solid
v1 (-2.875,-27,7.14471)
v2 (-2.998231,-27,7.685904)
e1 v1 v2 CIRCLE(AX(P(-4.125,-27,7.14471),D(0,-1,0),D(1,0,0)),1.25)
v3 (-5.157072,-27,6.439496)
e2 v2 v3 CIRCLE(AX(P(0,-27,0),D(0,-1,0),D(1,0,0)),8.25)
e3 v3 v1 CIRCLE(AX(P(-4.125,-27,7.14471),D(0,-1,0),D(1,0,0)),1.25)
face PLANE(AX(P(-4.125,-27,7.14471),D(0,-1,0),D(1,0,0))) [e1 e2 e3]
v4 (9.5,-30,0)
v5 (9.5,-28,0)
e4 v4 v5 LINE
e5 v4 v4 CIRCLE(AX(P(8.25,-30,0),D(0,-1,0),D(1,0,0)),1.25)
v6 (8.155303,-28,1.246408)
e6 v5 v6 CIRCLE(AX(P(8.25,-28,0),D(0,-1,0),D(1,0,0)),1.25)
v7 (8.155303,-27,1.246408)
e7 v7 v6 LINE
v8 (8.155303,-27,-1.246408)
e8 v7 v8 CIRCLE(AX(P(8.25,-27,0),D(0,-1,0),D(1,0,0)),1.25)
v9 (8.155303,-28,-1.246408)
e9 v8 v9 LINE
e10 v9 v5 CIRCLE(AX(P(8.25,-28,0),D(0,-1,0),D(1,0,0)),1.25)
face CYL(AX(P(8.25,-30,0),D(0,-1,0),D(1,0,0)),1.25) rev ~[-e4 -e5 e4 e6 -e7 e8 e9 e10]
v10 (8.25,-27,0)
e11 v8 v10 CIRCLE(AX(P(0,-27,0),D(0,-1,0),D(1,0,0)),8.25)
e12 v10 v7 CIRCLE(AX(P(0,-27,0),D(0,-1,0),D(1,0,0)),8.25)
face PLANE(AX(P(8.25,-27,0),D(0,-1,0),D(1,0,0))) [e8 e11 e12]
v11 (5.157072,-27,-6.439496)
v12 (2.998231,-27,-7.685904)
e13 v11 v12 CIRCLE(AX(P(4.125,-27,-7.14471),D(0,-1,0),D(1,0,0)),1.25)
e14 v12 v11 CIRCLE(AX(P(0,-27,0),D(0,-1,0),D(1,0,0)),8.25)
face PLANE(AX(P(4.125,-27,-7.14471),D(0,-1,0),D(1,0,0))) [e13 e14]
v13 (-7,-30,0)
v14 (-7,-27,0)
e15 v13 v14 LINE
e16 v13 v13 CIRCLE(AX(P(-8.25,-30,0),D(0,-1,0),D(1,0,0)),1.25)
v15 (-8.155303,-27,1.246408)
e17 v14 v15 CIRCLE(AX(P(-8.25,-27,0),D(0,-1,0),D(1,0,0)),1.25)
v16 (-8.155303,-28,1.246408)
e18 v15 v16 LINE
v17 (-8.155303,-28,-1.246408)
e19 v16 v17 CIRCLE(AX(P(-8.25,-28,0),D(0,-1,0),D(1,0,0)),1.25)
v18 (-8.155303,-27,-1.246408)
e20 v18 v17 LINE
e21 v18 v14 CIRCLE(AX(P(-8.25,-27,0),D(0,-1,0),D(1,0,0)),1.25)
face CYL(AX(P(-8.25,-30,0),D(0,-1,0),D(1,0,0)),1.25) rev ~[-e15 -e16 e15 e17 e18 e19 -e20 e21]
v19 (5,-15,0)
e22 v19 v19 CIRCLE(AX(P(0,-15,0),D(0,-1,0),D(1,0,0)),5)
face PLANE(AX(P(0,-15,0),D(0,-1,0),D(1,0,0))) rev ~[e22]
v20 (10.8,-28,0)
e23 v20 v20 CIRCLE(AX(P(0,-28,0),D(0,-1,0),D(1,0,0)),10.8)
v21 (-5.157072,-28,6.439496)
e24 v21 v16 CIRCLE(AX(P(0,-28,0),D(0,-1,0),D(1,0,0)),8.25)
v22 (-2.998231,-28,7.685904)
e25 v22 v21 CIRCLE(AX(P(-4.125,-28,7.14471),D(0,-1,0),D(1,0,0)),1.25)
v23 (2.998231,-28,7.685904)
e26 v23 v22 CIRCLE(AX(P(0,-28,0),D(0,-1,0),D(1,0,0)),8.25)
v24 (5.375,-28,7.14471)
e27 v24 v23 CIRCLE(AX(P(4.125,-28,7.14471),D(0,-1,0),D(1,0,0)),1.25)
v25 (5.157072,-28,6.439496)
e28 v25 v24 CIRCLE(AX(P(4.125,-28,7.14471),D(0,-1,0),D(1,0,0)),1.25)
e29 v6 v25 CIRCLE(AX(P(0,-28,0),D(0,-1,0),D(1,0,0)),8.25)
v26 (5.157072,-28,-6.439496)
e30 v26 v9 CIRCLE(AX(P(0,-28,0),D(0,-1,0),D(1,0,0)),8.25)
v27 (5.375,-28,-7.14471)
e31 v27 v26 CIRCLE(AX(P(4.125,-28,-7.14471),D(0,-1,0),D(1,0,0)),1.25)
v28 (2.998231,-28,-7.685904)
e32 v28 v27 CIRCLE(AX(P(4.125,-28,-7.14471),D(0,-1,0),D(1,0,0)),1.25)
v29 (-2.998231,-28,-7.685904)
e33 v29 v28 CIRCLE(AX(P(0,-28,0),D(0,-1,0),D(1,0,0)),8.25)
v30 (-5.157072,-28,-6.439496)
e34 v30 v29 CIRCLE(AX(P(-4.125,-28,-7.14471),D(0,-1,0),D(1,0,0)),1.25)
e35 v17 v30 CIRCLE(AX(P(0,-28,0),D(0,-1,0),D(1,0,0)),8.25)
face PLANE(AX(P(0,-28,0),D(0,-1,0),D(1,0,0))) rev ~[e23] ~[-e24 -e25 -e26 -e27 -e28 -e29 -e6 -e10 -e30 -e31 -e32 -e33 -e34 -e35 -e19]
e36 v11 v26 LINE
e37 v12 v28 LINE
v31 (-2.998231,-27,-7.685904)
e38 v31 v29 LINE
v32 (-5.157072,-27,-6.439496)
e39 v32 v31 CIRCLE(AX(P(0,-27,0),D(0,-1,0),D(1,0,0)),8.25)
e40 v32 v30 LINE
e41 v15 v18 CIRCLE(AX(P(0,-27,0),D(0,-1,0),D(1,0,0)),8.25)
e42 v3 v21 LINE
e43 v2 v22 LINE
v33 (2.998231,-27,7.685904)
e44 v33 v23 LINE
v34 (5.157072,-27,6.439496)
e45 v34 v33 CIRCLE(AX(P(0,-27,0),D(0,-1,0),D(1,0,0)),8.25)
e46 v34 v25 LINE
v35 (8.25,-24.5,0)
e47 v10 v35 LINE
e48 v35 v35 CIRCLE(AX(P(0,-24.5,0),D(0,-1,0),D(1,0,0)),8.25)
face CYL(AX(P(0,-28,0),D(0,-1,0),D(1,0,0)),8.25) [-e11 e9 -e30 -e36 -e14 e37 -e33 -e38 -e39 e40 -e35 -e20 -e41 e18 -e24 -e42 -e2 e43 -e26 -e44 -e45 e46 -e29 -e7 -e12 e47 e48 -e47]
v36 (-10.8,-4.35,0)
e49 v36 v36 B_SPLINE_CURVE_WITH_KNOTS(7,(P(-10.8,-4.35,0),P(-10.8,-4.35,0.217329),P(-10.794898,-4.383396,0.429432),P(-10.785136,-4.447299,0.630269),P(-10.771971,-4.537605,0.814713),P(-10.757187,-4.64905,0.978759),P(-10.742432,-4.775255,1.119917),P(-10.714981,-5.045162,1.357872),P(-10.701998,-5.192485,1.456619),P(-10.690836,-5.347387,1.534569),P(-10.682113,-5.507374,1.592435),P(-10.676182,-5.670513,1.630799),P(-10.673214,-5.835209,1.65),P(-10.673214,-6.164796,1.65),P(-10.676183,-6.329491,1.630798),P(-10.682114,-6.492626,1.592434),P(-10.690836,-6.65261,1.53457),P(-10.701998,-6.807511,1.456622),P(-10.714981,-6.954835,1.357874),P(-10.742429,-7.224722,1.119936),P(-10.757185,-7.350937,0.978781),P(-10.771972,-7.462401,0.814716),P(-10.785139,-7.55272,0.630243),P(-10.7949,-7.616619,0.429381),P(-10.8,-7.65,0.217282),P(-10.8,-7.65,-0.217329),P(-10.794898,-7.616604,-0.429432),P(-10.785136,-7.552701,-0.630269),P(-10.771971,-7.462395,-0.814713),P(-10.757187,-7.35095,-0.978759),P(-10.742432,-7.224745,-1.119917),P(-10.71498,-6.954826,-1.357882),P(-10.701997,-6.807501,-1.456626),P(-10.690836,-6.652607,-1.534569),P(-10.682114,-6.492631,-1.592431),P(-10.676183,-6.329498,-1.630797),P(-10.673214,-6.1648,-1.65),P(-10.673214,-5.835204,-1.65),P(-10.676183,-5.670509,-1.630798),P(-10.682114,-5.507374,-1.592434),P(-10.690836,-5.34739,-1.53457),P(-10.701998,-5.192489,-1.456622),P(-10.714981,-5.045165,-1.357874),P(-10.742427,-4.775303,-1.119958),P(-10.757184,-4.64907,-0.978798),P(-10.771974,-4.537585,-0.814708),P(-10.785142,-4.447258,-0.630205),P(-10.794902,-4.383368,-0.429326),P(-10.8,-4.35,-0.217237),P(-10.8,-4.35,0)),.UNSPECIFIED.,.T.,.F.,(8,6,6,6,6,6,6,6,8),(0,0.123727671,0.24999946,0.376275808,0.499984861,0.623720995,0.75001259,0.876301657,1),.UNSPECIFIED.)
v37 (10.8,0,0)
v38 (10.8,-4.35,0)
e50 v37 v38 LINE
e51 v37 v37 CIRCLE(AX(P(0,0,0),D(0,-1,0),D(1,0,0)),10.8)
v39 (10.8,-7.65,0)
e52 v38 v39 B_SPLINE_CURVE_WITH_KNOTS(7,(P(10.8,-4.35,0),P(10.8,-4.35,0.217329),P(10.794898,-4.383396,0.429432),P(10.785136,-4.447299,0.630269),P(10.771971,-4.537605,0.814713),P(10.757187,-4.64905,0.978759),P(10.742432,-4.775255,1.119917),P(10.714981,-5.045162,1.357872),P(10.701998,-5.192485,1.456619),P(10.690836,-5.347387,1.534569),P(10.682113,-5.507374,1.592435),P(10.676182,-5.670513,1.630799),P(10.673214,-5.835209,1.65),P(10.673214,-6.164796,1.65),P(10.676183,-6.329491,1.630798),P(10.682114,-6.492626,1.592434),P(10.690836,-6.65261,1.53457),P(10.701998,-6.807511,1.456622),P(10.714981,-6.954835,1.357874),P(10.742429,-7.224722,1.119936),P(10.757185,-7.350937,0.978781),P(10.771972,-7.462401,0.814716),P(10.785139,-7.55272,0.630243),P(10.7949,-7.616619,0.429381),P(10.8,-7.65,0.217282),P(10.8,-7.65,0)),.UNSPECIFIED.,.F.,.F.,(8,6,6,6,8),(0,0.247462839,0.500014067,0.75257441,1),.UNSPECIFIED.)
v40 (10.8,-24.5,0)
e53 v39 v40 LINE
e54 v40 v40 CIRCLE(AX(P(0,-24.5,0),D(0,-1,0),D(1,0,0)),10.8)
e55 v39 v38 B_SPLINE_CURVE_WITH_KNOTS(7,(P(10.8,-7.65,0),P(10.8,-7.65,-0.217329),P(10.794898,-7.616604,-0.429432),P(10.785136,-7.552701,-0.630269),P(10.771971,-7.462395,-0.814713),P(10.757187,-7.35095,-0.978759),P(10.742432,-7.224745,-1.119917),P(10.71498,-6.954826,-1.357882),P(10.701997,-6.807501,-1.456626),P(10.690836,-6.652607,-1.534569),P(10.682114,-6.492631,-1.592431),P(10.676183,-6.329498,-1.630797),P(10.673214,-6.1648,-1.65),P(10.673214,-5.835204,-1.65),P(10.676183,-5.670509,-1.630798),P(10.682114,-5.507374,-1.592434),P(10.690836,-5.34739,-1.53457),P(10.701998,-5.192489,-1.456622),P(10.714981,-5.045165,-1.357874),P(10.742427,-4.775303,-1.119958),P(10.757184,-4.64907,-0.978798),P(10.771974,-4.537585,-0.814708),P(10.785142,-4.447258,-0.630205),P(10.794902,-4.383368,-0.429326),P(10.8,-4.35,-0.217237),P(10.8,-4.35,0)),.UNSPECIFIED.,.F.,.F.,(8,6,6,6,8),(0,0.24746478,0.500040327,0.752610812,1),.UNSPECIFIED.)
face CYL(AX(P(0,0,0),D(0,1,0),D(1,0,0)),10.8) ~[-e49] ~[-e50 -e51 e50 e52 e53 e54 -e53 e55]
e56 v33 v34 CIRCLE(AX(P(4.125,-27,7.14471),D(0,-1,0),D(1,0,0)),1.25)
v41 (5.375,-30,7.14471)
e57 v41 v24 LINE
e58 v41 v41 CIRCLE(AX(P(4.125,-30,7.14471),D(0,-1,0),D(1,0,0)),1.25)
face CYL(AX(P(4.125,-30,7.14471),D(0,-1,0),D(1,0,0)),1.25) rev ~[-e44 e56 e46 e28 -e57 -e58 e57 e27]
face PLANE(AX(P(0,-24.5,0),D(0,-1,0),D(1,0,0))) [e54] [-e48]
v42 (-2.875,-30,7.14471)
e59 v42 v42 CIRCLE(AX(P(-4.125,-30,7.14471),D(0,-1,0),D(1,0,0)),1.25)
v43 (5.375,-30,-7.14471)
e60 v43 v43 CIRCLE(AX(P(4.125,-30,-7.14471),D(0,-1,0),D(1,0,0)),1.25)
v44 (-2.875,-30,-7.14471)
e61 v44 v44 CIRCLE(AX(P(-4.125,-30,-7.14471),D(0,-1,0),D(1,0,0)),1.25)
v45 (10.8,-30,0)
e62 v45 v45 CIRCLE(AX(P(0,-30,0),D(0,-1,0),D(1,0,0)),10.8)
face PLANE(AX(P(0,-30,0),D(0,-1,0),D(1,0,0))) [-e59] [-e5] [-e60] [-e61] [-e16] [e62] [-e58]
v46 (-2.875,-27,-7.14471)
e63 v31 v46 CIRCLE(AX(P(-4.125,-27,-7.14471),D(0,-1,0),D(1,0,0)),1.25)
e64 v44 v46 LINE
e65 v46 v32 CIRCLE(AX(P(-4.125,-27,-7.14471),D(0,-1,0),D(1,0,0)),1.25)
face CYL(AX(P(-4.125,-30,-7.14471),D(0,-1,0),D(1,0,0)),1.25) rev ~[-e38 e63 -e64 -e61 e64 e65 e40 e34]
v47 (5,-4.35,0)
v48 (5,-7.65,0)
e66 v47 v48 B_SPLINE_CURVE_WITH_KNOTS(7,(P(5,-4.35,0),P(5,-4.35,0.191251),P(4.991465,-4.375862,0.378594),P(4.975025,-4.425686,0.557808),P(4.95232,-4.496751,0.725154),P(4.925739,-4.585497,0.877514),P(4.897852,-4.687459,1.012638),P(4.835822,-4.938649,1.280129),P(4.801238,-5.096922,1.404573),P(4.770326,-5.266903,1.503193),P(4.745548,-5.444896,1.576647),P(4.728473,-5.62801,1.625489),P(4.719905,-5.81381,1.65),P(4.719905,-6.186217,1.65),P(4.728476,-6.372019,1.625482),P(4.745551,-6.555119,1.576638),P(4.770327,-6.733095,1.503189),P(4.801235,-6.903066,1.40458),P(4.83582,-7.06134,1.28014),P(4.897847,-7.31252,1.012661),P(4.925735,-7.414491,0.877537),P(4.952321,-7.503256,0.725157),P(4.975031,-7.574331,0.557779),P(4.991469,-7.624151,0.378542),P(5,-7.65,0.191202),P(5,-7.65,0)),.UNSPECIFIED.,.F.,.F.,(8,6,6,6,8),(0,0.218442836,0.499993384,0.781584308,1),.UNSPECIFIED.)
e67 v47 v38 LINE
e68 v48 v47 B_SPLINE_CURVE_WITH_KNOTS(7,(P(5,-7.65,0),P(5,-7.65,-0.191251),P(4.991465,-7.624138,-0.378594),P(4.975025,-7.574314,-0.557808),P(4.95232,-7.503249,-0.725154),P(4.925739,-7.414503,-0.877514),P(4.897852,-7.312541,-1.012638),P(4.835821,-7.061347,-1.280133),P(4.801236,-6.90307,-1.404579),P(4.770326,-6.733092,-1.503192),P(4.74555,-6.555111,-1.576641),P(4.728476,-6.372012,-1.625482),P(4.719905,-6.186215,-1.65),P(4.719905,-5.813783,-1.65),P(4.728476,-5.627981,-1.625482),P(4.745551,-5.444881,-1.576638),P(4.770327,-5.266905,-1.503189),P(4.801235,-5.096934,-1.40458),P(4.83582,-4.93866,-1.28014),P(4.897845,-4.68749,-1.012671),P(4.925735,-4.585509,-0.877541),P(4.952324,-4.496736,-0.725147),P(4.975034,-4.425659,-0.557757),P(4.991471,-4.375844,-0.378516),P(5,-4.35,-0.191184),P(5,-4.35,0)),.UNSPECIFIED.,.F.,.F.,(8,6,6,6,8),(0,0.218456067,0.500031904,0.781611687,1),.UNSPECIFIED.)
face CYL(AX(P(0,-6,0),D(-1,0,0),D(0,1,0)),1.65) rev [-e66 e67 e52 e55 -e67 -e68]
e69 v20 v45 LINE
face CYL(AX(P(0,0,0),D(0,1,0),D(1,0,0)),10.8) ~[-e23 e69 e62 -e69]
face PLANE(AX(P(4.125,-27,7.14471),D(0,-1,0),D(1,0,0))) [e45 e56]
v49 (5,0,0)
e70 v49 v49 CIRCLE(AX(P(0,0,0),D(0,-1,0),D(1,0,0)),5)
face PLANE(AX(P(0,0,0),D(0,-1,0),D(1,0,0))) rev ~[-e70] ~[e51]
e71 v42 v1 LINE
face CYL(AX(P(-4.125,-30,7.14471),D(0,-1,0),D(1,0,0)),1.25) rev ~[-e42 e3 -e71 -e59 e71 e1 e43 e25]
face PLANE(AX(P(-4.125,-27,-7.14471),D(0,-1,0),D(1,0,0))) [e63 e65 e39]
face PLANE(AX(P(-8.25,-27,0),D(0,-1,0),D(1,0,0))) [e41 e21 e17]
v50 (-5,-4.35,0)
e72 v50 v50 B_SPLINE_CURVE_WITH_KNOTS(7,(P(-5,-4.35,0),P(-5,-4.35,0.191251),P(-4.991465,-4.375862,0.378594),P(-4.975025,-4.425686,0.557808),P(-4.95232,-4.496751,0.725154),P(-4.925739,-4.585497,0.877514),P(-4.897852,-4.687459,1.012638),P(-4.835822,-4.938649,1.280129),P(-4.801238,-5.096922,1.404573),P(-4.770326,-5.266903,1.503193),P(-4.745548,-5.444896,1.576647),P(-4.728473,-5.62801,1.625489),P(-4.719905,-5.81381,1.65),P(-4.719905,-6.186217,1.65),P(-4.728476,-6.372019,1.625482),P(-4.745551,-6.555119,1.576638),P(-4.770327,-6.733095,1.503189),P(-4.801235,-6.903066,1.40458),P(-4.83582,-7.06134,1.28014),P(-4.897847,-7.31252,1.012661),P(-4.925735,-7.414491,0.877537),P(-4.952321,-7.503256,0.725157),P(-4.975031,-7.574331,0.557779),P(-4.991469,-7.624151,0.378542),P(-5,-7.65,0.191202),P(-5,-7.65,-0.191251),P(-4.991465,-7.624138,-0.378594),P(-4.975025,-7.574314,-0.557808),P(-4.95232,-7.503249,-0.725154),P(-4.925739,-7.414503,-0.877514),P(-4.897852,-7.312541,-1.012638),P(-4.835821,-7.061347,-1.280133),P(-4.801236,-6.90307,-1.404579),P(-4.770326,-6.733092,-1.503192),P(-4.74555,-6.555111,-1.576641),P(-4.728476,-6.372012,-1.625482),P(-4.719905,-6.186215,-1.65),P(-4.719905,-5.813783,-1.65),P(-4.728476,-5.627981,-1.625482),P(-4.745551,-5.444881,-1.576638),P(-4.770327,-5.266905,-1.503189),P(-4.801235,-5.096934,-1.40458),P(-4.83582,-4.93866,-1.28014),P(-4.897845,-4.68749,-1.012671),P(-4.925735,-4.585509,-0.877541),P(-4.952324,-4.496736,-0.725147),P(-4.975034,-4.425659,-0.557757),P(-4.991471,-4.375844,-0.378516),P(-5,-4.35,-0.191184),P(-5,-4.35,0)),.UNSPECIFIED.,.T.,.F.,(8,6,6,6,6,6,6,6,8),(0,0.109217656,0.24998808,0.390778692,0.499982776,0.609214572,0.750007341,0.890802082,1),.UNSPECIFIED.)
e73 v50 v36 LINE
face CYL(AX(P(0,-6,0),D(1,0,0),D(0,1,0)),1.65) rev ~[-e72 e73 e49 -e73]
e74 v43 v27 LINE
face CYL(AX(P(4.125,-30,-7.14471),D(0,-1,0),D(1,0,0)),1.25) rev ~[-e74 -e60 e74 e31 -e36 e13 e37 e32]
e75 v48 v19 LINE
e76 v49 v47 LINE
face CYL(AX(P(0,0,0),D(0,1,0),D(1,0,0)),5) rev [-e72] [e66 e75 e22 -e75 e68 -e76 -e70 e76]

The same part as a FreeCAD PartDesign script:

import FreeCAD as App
import Part
import Sketcher
from FreeCAD import Vector

doc = App.newDocument("Part")
body = doc.addObject("PartDesign::Body", "Body")

# Sketch on XZ plane
sketch1 = body.newObject("Sketcher::SketchObject", "Sketch")
sketch1.AttachmentSupport = (doc.getObject("XZ_Plane"), [""])
sketch1.MapMode = "FlatFace"
sketch1.addGeometry(Part.Circle(Vector(0, 0, 0), Vector(0, 0, 1), 11), False)
sketch1.addConstraint([
    Sketcher.Constraint("Coincident", 0, 3, -1, 1),
    Sketcher.Constraint("Diameter", 0, 21.6),
])
pad1 = body.newObject("PartDesign::Pad", "Pad")
pad1.Profile = sketch1
pad1.Length = 30

# Sketch on XZ plane
sketch2 = body.newObject("Sketcher::SketchObject", "Sketch001")
sketch2.AttachmentSupport = (doc.getObject("XZ_Plane"), [""])
sketch2.MapMode = "FlatFace"
sketch2.addGeometry(Part.Circle(Vector(0, 0, 0), Vector(0, 0, 1), 5), False)
sketch2.addConstraint([
    Sketcher.Constraint("Coincident", 0, 3, -1, 1),
    Sketcher.Constraint("Diameter", 0, 10.0),
])
pocket1 = body.newObject("PartDesign::Pocket", "Pocket")
pocket1.Profile = sketch2
pocket1.Length = 15
pocket1.Reversed = True

# Sketch on YZ plane
sketch3 = body.newObject("Sketcher::SketchObject", "Sketch002")
sketch3.AttachmentSupport = (doc.getObject("YZ_Plane"), [""])
sketch3.MapMode = "FlatFace"
sketch3.addGeometry(Part.Circle(Vector(-6, 0, 0), Vector(0, 0, 1), 1.6), False)
sketch3.addConstraint([
    Sketcher.Constraint("PointOnObject", 0, 3, -1),
    Sketcher.Constraint("Diameter", 0, 3.3),
    Sketcher.Constraint("DistanceX", 0, 3, -1, 1, 6.0),
])
pocket2 = body.newObject("PartDesign::Pocket", "Pocket001")
pocket2.Profile = sketch3
pocket2.Type = "ThroughAll"
pocket2.Midplane = True

# Sketch on XZ plane
sketch4 = body.newObject("Sketcher::SketchObject", "Sketch003")
sketch4.AttachmentSupport = (doc.getObject("XZ_Plane"), [""])
sketch4.MapMode = "FlatFace"
sketch4.AttachmentOffset = App.Placement(Vector(0, 0, 28), App.Rotation())
sketch4.addGeometry([
    Part.Circle(Vector(0, 0, 0), Vector(0, 0, 1), 11),
    Part.Circle(Vector(0, 0, 0), Vector(0, 0, 1), 8),
], False)
sketch4.addConstraint([
    Sketcher.Constraint("Coincident", 0, 3, -1, 1),
    Sketcher.Constraint("Coincident", 1, 3, -1, 1),
    Sketcher.Constraint("Diameter", 0, 21.6),
    Sketcher.Constraint("Diameter", 1, 16.5),
])
pocket3 = body.newObject("PartDesign::Pocket", "Pocket002")
pocket3.Profile = sketch4
pocket3.Length = 3.5

# Sketch on XZ plane
sketch5 = body.newObject("Sketcher::SketchObject", "Sketch004")
sketch5.AttachmentSupport = (doc.getObject("XZ_Plane"), [""])
sketch5.MapMode = "FlatFace"
sketch5.AttachmentOffset = App.Placement(Vector(0, 0, 30), App.Rotation())
sketch5.addGeometry([
    Part.Circle(Vector(-4.1, 7.1, 0), Vector(0, 0, 1), 1.2),  # 0
    Part.Circle(Vector(4.1, 7.1, 0), Vector(0, 0, 1), 1.2),  # 1
    Part.Circle(Vector(-8.2, 0, 0), Vector(0, 0, 1), 1.2),  # 2
    Part.Circle(Vector(-4.1, -7.1, 0), Vector(0, 0, 1), 1.2),  # 3
    Part.Circle(Vector(4.1, -7.1, 0), Vector(0, 0, 1), 1.2),  # 4
    Part.Circle(Vector(8.2, 0, 0), Vector(0, 0, 1), 1.2),  # 5
], False)
sketch5.addConstraint([
    Sketcher.Constraint("Equal", 0, 1),
    Sketcher.Constraint("Equal", 1, 2),
    Sketcher.Constraint("Equal", 2, 3),
    Sketcher.Constraint("Equal", 3, 4),
    Sketcher.Constraint("Equal", 4, 5),
    Sketcher.Constraint("Symmetric", 1, 3, 3, 3, -1, 1),
    Sketcher.Constraint("Symmetric", 0, 3, 4, 3, -1, 1),
    Sketcher.Constraint("Symmetric", 2, 3, 5, 3, -1, 1),
    Sketcher.Constraint("Symmetric", 0, 3, 1, 3, -2),
    Sketcher.Constraint("PointOnObject", 2, 3, -1),
    Sketcher.Constraint("Diameter", 0, 2.5),
    Sketcher.Constraint("DistanceX", 2, 3, 5, 3, 16.5),
    Sketcher.Constraint("DistanceX", 0, 3, 1, 3, 8.25),
    Sketcher.Constraint("DistanceY", -1, 1, 0, 3, 7.14471),
])
pocket4 = body.newObject("PartDesign::Pocket", "Pocket003")
pocket4.Profile = sketch5
pocket4.Length = 3

doc.recompute()
